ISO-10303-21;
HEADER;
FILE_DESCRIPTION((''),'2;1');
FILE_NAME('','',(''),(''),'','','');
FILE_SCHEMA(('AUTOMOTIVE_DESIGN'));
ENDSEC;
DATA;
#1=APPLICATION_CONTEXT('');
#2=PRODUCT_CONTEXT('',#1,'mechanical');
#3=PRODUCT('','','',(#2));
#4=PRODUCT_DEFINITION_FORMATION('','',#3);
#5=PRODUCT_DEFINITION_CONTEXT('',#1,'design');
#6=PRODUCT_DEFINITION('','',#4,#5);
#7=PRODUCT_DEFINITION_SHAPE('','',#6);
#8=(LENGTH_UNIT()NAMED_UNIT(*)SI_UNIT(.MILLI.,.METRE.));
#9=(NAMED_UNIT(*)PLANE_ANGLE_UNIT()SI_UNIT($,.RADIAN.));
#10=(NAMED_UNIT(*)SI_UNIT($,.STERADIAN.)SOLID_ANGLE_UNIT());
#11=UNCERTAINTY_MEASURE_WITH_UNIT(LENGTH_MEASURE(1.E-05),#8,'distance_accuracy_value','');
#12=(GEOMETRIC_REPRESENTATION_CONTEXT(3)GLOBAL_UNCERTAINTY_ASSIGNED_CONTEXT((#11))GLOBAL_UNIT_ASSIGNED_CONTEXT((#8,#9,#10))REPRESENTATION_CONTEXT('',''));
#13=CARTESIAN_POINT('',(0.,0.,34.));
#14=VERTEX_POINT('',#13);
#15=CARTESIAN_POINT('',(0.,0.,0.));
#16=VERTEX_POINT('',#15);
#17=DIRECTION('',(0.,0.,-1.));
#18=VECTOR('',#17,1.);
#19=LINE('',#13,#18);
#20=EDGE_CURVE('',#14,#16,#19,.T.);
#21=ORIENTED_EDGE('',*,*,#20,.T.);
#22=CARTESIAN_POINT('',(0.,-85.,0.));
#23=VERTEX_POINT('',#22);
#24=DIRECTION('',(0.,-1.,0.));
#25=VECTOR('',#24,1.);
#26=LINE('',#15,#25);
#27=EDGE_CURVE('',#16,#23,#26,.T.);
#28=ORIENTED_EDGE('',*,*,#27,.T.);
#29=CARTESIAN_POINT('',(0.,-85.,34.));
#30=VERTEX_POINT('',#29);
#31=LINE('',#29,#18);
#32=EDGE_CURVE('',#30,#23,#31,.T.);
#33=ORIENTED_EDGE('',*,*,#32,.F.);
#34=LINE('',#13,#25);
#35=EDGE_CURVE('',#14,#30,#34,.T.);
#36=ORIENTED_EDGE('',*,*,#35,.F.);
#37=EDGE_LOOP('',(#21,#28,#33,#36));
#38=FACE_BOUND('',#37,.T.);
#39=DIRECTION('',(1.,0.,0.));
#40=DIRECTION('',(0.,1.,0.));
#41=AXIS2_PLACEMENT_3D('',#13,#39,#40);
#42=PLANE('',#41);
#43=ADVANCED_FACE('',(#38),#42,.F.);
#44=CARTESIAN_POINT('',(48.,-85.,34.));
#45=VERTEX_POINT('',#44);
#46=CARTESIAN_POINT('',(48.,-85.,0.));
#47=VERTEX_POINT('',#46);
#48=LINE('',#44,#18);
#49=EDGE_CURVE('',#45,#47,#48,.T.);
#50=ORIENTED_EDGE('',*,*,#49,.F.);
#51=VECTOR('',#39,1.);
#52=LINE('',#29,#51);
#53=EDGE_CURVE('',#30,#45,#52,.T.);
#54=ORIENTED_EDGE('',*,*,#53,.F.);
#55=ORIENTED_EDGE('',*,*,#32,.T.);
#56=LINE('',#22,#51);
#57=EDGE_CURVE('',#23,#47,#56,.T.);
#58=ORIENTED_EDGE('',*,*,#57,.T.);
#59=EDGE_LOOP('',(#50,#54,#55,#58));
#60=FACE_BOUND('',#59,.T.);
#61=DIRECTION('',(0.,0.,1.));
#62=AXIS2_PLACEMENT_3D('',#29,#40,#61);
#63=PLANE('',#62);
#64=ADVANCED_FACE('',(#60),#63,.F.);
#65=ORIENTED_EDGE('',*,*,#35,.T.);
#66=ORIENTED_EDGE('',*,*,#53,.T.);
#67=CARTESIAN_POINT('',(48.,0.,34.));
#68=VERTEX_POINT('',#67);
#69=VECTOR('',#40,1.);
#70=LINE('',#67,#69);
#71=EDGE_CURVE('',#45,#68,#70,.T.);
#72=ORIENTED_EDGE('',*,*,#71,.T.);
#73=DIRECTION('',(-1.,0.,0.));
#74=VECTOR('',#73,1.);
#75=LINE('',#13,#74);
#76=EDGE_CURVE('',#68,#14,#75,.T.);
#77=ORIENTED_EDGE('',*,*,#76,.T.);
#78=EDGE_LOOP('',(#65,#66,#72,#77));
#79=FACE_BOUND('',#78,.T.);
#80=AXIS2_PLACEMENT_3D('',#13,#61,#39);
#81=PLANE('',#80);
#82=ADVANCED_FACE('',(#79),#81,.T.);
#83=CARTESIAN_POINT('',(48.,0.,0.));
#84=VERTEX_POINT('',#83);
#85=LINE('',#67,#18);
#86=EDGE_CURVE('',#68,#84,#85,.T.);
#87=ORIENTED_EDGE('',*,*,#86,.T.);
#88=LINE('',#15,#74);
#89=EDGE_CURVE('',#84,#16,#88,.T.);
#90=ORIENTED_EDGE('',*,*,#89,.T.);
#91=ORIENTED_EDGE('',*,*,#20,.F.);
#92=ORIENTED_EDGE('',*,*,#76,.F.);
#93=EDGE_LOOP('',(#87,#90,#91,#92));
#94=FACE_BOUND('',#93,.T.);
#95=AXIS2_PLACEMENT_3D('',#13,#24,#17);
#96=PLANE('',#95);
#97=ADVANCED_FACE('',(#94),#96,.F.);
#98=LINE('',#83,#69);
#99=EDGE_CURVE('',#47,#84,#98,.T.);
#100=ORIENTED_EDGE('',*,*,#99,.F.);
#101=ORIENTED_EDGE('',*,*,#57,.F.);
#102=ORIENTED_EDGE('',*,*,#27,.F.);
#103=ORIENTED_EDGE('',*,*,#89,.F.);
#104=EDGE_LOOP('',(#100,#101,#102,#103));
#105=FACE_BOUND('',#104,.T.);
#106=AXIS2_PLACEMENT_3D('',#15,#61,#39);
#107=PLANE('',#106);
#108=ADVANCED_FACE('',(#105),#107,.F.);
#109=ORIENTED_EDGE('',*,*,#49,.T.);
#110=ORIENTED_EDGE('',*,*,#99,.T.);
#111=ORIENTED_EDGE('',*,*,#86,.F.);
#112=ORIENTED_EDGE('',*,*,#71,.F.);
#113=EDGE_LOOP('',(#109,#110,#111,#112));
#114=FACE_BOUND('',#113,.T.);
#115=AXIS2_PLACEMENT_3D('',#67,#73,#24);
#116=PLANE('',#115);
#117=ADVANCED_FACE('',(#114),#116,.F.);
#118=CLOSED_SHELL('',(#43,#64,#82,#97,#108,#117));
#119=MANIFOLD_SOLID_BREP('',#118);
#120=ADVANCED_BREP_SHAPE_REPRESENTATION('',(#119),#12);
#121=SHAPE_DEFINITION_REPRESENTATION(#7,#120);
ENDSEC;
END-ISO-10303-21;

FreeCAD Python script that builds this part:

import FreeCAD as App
import Part
import Sketcher

doc = App.newDocument("Part")
body = doc.addObject("PartDesign::Body", "Body")

sketch1 = body.newObject("Sketcher::SketchObject", "Sketch")
sketch1.AttachmentSupport = (doc.getObject("XY_Plane"), [""])
sketch1.MapMode = "FlatFace"
sketch1.addGeometry([
    Part.LineSegment(App.Vector(0, 0, 0), App.Vector(0, -85, 0)),
    Part.LineSegment(App.Vector(0, -85, 0), App.Vector(48, -85, 0)),
    Part.LineSegment(App.Vector(48, -85, 0), App.Vector(48, 0, 0)),
    Part.LineSegment(App.Vector(48, 0, 0), App.Vector(0, 0, 0)),
], False)
sketch1.addConstraint([
    Sketcher.Constraint("Coincident", 0, 2, 1, 1),
    Sketcher.Constraint("Coincident", 1, 2, 2, 1),
    Sketcher.Constraint("Coincident", 2, 2, 3, 1),
    Sketcher.Constraint("Coincident", 3, 2, 0, 1),
    Sketcher.Constraint("Vertical", 0),
    Sketcher.Constraint("Horizontal", 1),
    Sketcher.Constraint("Vertical", 2),
    Sketcher.Constraint("Horizontal", 3),
    Sketcher.Constraint("Coincident", 3, 2, -1, 1),
    Sketcher.Constraint("DistanceX", 1, 1, 1, 2, 48.0),
    Sketcher.Constraint("DistanceY", 0, 2, 0, 1, 85.0),
])
pad1 = body.newObject("PartDesign::Pad", "Pad")
pad1.Profile = sketch1
pad1.Length = 34

doc.recompute()
